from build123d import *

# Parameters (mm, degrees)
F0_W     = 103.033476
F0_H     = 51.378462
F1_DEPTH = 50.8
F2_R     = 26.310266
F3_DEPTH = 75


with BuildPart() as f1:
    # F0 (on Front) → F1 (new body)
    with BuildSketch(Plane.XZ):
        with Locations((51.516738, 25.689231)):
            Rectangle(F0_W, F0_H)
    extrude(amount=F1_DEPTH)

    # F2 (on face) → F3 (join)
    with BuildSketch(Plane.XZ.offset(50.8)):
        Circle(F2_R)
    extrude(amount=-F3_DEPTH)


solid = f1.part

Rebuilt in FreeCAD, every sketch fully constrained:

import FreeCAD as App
import Part
import Sketcher

V = App.Vector
Q = App.Units.Quantity


def add_polygon(sketch, points):
    """Adds a closed chain of lines whose ends are joined by coincident constraints."""
    first, n = sketch.GeometryCount, len(points)
    for a, b in zip(points, points[1:] + points[:1]):
        sketch.addGeometry(Part.LineSegment(App.Vector(*a, 0), App.Vector(*b, 0)), False)
    for i in range(n):
        sketch.addConstraint(Sketcher.Constraint("Coincident", first + i, 2, first + (i + 1) % n, 1))

doc = App.newDocument("Part")
body = doc.addObject("PartDesign::Body", "Body")

# Sketch on XZ plane
sketch1 = body.newObject("Sketcher::SketchObject", "Sketch")
sketch1.AttachmentSupport = (doc.getObject("XZ_Plane"), [""])
sketch1.MapMode = "FlatFace"
add_polygon(sketch1, [(0, 51.378462), (0, 0), (103.033476, 0), (103.033476, 51.378462)])  # lines 0-3
sketch1.addConstraint([
    Sketcher.Constraint("Vertical", 0),
    Sketcher.Constraint("Horizontal", 1),
    Sketcher.Constraint("Vertical", 2),
    Sketcher.Constraint("Horizontal", 3),
    Sketcher.Constraint("Coincident", 0, 2, -1, 1),
    Sketcher.Constraint("DistanceX", 1, 1, 1, 2, Q("103.033476 mm")),
    Sketcher.Constraint("DistanceY", 0, 2, 0, 1, Q("51.378462 mm")),
])
pad1 = body.newObject("PartDesign::Pad", "Pad")
pad1.Profile = sketch1
pad1.Length = 50.8

# Sketch on XZ plane
sketch2 = body.newObject("Sketcher::SketchObject", "Sketch001")
sketch2.AttachmentSupport = (doc.getObject("XZ_Plane"), [""])
sketch2.MapMode = "FlatFace"
sketch2.AttachmentOffset = App.Placement(V(0, 0, 50.8), App.Rotation())
sketch2.addGeometry(Part.Circle(V(0, 0, 0), V(0, 0, 1), 26.310266), False)
sketch2.addConstraint([
    Sketcher.Constraint("Coincident", 0, 3, -1, 1),
    Sketcher.Constraint("Diameter", 0, Q("52.620532 mm")),
])
pad2 = body.newObject("PartDesign::Pad", "Pad001")
pad2.Profile = sketch2
pad2.Length = 75
pad2.Reversed = True

doc.recompute()
